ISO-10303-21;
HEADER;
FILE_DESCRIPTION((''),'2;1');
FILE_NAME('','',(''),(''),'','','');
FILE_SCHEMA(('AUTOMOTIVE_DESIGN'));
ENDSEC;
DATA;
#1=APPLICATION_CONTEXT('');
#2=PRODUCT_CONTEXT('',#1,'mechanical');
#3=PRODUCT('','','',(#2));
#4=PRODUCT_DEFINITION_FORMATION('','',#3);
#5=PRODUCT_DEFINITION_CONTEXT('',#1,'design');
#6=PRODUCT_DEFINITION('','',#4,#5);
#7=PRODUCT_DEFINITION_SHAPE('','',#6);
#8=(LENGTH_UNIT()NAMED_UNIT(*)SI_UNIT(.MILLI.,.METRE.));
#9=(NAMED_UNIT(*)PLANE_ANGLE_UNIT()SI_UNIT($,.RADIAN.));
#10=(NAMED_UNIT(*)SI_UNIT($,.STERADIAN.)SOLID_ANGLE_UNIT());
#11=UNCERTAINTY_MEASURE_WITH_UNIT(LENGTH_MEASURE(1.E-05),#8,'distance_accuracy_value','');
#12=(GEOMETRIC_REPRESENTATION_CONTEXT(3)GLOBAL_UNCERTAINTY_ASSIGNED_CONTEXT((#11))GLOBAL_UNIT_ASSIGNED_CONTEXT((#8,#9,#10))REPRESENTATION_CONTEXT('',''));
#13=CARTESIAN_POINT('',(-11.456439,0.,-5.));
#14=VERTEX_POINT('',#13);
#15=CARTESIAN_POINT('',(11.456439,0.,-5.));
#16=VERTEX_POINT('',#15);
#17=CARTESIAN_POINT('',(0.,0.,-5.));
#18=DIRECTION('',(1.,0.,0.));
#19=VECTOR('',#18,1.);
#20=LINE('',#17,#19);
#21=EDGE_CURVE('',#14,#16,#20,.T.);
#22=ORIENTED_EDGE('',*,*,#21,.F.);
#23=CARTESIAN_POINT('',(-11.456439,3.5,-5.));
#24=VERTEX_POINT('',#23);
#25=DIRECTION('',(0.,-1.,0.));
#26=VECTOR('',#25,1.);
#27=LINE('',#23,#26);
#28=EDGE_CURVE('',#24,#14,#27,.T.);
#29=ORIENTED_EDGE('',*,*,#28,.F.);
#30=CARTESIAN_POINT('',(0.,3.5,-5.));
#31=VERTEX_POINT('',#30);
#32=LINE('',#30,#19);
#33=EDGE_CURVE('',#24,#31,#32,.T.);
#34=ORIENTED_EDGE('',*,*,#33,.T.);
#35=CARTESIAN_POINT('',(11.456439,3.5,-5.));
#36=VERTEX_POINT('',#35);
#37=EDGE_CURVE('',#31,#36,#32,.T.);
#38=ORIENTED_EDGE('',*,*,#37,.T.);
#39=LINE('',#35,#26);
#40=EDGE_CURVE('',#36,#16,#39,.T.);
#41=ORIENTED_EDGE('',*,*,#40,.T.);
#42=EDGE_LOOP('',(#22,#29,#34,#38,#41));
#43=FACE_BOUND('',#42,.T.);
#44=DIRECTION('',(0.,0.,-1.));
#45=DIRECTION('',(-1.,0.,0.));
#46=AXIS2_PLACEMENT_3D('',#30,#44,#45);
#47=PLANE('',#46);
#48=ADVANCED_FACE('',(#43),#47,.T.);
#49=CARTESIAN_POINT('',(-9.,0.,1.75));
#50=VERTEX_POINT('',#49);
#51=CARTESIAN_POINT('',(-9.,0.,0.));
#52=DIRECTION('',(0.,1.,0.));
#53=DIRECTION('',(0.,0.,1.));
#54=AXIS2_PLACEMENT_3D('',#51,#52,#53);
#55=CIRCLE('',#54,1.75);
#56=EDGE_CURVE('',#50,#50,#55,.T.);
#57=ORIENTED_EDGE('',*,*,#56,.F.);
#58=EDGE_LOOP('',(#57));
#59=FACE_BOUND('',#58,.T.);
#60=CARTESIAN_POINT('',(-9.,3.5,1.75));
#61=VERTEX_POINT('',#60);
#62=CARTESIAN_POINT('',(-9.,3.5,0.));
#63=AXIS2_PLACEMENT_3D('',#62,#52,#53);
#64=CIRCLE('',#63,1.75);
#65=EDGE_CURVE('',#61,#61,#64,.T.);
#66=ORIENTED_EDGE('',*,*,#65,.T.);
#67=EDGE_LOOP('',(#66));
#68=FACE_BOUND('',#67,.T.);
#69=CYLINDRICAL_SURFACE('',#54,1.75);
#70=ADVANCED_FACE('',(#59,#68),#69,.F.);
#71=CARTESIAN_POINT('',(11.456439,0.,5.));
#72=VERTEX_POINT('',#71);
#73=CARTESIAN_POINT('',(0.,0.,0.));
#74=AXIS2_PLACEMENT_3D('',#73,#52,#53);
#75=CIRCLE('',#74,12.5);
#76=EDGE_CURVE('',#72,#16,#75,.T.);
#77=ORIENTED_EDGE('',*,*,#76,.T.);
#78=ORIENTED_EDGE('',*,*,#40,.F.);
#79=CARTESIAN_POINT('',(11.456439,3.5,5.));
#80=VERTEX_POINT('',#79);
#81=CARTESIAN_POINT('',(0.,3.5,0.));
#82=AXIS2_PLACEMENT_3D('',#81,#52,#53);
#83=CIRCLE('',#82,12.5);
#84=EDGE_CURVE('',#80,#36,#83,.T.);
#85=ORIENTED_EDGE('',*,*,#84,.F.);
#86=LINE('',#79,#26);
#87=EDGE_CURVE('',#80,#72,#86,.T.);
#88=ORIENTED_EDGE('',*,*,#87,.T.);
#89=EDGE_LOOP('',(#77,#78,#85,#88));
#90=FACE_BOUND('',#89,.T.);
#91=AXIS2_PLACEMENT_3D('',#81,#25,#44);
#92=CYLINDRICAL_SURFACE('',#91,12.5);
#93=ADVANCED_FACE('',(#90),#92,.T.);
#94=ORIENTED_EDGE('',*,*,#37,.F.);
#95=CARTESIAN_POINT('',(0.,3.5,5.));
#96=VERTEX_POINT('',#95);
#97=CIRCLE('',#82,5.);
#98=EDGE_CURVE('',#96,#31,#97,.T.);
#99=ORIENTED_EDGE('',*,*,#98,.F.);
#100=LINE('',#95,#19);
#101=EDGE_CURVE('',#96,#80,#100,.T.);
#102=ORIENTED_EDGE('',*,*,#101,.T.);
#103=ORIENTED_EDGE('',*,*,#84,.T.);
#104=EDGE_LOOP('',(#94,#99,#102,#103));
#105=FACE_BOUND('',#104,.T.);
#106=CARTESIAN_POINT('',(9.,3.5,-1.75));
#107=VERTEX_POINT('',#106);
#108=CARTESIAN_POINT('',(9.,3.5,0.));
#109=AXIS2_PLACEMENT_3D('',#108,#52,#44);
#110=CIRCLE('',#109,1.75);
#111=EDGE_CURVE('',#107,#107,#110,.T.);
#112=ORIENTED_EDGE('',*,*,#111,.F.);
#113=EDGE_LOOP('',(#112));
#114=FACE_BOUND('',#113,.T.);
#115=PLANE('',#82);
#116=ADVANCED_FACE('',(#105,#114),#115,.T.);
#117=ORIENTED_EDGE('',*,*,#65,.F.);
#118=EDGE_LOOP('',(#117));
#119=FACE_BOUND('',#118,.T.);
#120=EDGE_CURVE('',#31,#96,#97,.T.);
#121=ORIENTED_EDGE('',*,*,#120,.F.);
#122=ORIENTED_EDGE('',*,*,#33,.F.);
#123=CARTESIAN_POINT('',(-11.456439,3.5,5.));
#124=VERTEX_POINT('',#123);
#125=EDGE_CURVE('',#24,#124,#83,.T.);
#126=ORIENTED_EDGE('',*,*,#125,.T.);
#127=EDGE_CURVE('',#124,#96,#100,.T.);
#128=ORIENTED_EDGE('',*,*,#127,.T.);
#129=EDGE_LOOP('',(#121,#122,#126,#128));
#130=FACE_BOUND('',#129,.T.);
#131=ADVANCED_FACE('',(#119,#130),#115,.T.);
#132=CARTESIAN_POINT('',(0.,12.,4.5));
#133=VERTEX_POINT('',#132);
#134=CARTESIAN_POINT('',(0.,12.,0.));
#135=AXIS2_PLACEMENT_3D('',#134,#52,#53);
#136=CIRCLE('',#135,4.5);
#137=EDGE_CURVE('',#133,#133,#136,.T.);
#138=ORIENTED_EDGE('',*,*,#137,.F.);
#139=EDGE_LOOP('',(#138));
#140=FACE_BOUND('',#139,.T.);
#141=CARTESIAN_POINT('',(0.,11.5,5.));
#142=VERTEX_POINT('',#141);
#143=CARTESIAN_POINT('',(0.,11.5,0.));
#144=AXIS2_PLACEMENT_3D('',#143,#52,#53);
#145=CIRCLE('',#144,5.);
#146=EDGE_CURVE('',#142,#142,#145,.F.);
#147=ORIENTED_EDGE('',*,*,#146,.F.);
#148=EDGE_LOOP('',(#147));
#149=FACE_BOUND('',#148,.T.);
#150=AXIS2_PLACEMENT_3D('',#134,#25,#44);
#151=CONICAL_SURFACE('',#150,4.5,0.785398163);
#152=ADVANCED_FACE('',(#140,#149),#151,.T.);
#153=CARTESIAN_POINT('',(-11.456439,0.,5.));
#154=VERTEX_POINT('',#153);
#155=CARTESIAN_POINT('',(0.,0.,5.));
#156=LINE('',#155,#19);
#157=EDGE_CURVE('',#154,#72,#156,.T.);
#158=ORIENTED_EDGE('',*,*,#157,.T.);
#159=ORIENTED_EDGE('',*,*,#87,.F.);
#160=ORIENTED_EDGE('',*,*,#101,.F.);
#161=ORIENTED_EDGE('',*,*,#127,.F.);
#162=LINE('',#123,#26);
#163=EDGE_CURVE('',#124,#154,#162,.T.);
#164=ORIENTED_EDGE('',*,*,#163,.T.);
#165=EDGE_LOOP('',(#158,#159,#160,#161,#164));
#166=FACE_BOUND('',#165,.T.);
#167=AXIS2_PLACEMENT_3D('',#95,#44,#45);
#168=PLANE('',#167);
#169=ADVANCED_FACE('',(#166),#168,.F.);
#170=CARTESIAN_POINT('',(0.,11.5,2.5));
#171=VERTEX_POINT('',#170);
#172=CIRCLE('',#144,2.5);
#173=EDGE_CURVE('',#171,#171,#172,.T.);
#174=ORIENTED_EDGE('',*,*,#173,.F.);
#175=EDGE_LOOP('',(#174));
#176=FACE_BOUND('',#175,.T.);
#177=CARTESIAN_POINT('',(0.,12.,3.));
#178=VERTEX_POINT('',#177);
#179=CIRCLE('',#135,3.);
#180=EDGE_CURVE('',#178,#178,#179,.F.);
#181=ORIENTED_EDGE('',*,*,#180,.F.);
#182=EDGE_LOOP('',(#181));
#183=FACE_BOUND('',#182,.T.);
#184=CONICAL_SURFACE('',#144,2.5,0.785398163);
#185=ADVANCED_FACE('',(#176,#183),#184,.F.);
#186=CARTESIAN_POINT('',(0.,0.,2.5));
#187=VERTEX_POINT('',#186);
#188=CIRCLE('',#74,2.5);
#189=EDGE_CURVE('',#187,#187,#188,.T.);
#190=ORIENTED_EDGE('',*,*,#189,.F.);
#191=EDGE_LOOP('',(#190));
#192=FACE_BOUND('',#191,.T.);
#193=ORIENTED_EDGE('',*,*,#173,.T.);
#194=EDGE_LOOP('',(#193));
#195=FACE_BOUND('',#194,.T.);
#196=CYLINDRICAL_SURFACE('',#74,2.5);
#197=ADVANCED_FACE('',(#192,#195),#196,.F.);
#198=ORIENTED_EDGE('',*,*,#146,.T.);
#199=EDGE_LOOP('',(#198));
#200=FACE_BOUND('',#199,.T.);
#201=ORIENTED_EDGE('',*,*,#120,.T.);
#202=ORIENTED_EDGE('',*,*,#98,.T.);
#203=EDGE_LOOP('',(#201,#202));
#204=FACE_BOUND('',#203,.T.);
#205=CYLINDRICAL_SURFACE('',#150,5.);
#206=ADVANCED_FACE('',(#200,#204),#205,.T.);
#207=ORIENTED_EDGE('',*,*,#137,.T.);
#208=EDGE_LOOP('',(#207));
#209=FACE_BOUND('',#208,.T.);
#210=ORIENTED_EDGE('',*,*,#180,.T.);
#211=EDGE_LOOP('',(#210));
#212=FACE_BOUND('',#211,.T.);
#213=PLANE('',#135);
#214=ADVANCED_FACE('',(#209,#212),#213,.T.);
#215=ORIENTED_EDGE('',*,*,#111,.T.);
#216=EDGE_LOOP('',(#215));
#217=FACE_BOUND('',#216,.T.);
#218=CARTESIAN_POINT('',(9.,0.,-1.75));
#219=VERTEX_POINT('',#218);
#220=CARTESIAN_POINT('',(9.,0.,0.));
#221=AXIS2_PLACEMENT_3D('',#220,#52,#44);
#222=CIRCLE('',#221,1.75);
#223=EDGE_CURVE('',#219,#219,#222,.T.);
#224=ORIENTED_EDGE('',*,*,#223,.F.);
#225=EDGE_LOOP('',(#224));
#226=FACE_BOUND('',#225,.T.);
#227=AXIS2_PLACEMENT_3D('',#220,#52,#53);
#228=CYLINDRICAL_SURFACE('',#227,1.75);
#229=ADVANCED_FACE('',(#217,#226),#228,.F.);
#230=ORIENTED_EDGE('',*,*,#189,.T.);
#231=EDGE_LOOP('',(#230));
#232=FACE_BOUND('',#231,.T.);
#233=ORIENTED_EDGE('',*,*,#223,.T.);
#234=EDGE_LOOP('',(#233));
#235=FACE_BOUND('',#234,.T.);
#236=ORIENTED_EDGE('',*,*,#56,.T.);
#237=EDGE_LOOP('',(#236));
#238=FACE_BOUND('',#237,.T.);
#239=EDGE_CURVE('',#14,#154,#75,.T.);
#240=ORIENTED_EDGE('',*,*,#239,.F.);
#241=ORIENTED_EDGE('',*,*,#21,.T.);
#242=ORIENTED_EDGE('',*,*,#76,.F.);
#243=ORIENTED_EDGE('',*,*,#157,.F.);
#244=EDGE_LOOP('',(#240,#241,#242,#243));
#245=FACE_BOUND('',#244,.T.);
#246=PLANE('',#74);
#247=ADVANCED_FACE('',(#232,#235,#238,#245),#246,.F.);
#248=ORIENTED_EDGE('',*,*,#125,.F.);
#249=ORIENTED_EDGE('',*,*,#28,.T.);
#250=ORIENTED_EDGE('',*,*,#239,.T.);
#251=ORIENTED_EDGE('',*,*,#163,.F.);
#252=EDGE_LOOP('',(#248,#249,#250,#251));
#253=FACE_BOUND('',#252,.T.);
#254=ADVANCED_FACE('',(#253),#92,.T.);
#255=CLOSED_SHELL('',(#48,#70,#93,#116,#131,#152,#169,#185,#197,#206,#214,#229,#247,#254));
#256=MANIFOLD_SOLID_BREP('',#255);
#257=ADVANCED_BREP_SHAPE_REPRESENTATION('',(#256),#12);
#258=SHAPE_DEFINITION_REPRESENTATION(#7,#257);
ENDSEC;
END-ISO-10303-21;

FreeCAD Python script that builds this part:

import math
import FreeCAD as App
import Part
import Sketcher
from FreeCAD import Vector
Q = App.Units.Quantity


def edges_at(feature, points):
    """Names of the edges that pass closest to the given points."""
    edges = feature.Shape.Edges
    near = lambda p: min(range(len(edges)), key=lambda i: edges[i].distToShape(Part.Vertex(*p))[0])
    return sorted({f"Edge{near(p) + 1}" for p in points})

doc = App.newDocument("Part")
params = doc.addObject("Spreadsheet::Sheet", "Params")
for row, (alias, value) in enumerate([
    ("sketch1_radius", "12.5 mm"),
    ("pad1_length", "3.5 mm"),
    ("sketch2_diameter", "10 mm"),
    ("pad2_length", "8.5 mm"),
    ("sketch3_diameter", "5 mm"),
    ("sketch4_diameter", "3.5 mm"),
    ("chamfer_size", "0.5 mm"),
], start=1):
    params.set(f"A{row}", alias)
    params.set(f"B{row}", "=" + value)
    params.setAlias(f"B{row}", alias)

body = doc.addObject("PartDesign::Body", "Body")

# Sketch on XZ plane
sketch1 = body.newObject("Sketcher::SketchObject", "Sketch")
sketch1.AttachmentSupport = (doc.getObject("XZ_Plane"), [""])
sketch1.MapMode = "FlatFace"
sketch1.addGeometry([
    Part.ArcOfCircle(Part.Circle(Vector(0, 0, 0), Vector(0, 0, 1), 12), math.radians(180), math.radians(204)),  # 0
    Part.ArcOfCircle(Part.Circle(Vector(0, 0, 0), Vector(0, 0, 1), 12), math.radians(156), math.radians(180)),  # 1
    Part.LineSegment(Vector(-11, 5, 0), Vector(11, 5, 0)),  # 2
    Part.ArcOfCircle(Part.Circle(Vector(0, 0, 0), Vector(0, 0, 1), 12), math.radians(0), math.radians(24)),  # 3
    Part.ArcOfCircle(Part.Circle(Vector(0, 0, 0), Vector(0, 0, 1), 12), math.radians(-24), math.radians(0)),  # 4
    Part.LineSegment(Vector(11, -5, 0), Vector(-11, -5, 0)),  # 5
], False)
sketch1.addConstraint([
    Sketcher.Constraint("Tangent", 0, 1, 1, 2),
    Sketcher.Constraint("Coincident", 1, 1, 2, 1),
    Sketcher.Constraint("Coincident", 2, 2, 3, 2),
    Sketcher.Constraint("Tangent", 3, 1, 4, 2),
    Sketcher.Constraint("Coincident", 4, 1, 5, 1),
    Sketcher.Constraint("Coincident", 5, 2, 0, 2),
    Sketcher.Constraint("Horizontal", 2),
    Sketcher.Constraint("Horizontal", 5),
    Sketcher.Constraint("Coincident", 0, 3, -1, 1),
    Sketcher.Constraint("Coincident", 3, 3, -1, 1),
    Sketcher.Constraint("Equal", 0, 1),
    Sketcher.Constraint("Equal", 1, 3),
    Sketcher.Constraint("Equal", 3, 4),
    Sketcher.Constraint("PointOnObject", 0, 1, -1),
    Sketcher.Constraint("PointOnObject", 3, 1, -1),
    Sketcher.Constraint("Vertical", 2, 2, 4, 1),
    Sketcher.Constraint("Radius", 0, Q("12.5 mm")),
    Sketcher.Constraint("DistanceY", -1, 1, 1, 1, Q("5 mm")),
])
sketch1.setExpression("Constraints[16]", "Params.sketch1_radius")
pad1 = body.newObject("PartDesign::Pad", "Pad")
pad1.Profile = sketch1
pad1.setExpression("Length", "Params.pad1_length")
pad1.Reversed = True

# Sketch on XZ plane
sketch2 = body.newObject("Sketcher::SketchObject", "Sketch001")
sketch2.AttachmentSupport = (doc.getObject("XZ_Plane"), [""])
sketch2.MapMode = "FlatFace"
sketch2.AttachmentOffset = App.Placement(Vector(0, 0, -3.5), App.Rotation())
sketch2.addGeometry(Part.Circle(Vector(0, 0, 0), Vector(0, 0, 1), 5), False)
sketch2.addConstraint([
    Sketcher.Constraint("Coincident", 0, 3, -1, 1),
    Sketcher.Constraint("Diameter", 0, Q("10 mm")),
])
sketch2.setExpression("Constraints[1]", "Params.sketch2_diameter")
pad2 = body.newObject("PartDesign::Pad", "Pad001")
pad2.Profile = sketch2
pad2.setExpression("Length", "Params.pad2_length")
pad2.Reversed = True

# Sketch on XZ plane
sketch3 = body.newObject("Sketcher::SketchObject", "Sketch002")
sketch3.AttachmentSupport = (doc.getObject("XZ_Plane"), [""])
sketch3.MapMode = "FlatFace"
sketch3.AttachmentOffset = App.Placement(Vector(0, 0, -12), App.Rotation())
sketch3.addGeometry(Part.Circle(Vector(0, 0, 0), Vector(0, 0, 1), 2.5), False)
sketch3.addConstraint([
    Sketcher.Constraint("Coincident", 0, 3, -1, 1),
    Sketcher.Constraint("Diameter", 0, Q("5 mm")),
])
sketch3.setExpression("Constraints[1]", "Params.sketch3_diameter")
pocket1 = body.newObject("PartDesign::Pocket", "Pocket")
pocket1.Profile = sketch3
pocket1.Type = "ThroughAll"
pocket1.Reversed = True

# Sketch on XZ plane
sketch4 = body.newObject("Sketcher::SketchObject", "Sketch003")
sketch4.AttachmentSupport = (doc.getObject("XZ_Plane"), [""])
sketch4.MapMode = "FlatFace"
sketch4.AttachmentOffset = App.Placement(Vector(0, 0, -3.5), App.Rotation())
sketch4.addGeometry([
    Part.Circle(Vector(-9, 0, 0), Vector(0, 0, 1), 1.8),
    Part.Circle(Vector(9, 0, 0), Vector(0, 0, 1), 1.8),
], False)
sketch4.addConstraint([
    Sketcher.Constraint("Equal", 0, 1),
    Sketcher.Constraint("Symmetric", 0, 3, 1, 3, -1, 1),
    Sketcher.Constraint("PointOnObject", 0, 3, -1),
    Sketcher.Constraint("Diameter", 0, Q("3.5 mm")),
    Sketcher.Constraint("DistanceX", 0, 3, -1, 1, Q("9 mm")),
])
sketch4.setExpression("Constraints[3]", "Params.sketch4_diameter")
pocket2 = body.newObject("PartDesign::Pocket", "Pocket001")
pocket2.Profile = sketch4
pocket2.Type = "ThroughAll"
pocket2.Reversed = True
doc.recompute()

chamfer = body.newObject("PartDesign::Chamfer", "Chamfer")
chamfer.Base = (pocket2, edges_at(pocket2, [(0, 12, -5), (0, 12, -2.5)]))
chamfer.setExpression("Size", "Params.chamfer_size")

doc.recompute()
